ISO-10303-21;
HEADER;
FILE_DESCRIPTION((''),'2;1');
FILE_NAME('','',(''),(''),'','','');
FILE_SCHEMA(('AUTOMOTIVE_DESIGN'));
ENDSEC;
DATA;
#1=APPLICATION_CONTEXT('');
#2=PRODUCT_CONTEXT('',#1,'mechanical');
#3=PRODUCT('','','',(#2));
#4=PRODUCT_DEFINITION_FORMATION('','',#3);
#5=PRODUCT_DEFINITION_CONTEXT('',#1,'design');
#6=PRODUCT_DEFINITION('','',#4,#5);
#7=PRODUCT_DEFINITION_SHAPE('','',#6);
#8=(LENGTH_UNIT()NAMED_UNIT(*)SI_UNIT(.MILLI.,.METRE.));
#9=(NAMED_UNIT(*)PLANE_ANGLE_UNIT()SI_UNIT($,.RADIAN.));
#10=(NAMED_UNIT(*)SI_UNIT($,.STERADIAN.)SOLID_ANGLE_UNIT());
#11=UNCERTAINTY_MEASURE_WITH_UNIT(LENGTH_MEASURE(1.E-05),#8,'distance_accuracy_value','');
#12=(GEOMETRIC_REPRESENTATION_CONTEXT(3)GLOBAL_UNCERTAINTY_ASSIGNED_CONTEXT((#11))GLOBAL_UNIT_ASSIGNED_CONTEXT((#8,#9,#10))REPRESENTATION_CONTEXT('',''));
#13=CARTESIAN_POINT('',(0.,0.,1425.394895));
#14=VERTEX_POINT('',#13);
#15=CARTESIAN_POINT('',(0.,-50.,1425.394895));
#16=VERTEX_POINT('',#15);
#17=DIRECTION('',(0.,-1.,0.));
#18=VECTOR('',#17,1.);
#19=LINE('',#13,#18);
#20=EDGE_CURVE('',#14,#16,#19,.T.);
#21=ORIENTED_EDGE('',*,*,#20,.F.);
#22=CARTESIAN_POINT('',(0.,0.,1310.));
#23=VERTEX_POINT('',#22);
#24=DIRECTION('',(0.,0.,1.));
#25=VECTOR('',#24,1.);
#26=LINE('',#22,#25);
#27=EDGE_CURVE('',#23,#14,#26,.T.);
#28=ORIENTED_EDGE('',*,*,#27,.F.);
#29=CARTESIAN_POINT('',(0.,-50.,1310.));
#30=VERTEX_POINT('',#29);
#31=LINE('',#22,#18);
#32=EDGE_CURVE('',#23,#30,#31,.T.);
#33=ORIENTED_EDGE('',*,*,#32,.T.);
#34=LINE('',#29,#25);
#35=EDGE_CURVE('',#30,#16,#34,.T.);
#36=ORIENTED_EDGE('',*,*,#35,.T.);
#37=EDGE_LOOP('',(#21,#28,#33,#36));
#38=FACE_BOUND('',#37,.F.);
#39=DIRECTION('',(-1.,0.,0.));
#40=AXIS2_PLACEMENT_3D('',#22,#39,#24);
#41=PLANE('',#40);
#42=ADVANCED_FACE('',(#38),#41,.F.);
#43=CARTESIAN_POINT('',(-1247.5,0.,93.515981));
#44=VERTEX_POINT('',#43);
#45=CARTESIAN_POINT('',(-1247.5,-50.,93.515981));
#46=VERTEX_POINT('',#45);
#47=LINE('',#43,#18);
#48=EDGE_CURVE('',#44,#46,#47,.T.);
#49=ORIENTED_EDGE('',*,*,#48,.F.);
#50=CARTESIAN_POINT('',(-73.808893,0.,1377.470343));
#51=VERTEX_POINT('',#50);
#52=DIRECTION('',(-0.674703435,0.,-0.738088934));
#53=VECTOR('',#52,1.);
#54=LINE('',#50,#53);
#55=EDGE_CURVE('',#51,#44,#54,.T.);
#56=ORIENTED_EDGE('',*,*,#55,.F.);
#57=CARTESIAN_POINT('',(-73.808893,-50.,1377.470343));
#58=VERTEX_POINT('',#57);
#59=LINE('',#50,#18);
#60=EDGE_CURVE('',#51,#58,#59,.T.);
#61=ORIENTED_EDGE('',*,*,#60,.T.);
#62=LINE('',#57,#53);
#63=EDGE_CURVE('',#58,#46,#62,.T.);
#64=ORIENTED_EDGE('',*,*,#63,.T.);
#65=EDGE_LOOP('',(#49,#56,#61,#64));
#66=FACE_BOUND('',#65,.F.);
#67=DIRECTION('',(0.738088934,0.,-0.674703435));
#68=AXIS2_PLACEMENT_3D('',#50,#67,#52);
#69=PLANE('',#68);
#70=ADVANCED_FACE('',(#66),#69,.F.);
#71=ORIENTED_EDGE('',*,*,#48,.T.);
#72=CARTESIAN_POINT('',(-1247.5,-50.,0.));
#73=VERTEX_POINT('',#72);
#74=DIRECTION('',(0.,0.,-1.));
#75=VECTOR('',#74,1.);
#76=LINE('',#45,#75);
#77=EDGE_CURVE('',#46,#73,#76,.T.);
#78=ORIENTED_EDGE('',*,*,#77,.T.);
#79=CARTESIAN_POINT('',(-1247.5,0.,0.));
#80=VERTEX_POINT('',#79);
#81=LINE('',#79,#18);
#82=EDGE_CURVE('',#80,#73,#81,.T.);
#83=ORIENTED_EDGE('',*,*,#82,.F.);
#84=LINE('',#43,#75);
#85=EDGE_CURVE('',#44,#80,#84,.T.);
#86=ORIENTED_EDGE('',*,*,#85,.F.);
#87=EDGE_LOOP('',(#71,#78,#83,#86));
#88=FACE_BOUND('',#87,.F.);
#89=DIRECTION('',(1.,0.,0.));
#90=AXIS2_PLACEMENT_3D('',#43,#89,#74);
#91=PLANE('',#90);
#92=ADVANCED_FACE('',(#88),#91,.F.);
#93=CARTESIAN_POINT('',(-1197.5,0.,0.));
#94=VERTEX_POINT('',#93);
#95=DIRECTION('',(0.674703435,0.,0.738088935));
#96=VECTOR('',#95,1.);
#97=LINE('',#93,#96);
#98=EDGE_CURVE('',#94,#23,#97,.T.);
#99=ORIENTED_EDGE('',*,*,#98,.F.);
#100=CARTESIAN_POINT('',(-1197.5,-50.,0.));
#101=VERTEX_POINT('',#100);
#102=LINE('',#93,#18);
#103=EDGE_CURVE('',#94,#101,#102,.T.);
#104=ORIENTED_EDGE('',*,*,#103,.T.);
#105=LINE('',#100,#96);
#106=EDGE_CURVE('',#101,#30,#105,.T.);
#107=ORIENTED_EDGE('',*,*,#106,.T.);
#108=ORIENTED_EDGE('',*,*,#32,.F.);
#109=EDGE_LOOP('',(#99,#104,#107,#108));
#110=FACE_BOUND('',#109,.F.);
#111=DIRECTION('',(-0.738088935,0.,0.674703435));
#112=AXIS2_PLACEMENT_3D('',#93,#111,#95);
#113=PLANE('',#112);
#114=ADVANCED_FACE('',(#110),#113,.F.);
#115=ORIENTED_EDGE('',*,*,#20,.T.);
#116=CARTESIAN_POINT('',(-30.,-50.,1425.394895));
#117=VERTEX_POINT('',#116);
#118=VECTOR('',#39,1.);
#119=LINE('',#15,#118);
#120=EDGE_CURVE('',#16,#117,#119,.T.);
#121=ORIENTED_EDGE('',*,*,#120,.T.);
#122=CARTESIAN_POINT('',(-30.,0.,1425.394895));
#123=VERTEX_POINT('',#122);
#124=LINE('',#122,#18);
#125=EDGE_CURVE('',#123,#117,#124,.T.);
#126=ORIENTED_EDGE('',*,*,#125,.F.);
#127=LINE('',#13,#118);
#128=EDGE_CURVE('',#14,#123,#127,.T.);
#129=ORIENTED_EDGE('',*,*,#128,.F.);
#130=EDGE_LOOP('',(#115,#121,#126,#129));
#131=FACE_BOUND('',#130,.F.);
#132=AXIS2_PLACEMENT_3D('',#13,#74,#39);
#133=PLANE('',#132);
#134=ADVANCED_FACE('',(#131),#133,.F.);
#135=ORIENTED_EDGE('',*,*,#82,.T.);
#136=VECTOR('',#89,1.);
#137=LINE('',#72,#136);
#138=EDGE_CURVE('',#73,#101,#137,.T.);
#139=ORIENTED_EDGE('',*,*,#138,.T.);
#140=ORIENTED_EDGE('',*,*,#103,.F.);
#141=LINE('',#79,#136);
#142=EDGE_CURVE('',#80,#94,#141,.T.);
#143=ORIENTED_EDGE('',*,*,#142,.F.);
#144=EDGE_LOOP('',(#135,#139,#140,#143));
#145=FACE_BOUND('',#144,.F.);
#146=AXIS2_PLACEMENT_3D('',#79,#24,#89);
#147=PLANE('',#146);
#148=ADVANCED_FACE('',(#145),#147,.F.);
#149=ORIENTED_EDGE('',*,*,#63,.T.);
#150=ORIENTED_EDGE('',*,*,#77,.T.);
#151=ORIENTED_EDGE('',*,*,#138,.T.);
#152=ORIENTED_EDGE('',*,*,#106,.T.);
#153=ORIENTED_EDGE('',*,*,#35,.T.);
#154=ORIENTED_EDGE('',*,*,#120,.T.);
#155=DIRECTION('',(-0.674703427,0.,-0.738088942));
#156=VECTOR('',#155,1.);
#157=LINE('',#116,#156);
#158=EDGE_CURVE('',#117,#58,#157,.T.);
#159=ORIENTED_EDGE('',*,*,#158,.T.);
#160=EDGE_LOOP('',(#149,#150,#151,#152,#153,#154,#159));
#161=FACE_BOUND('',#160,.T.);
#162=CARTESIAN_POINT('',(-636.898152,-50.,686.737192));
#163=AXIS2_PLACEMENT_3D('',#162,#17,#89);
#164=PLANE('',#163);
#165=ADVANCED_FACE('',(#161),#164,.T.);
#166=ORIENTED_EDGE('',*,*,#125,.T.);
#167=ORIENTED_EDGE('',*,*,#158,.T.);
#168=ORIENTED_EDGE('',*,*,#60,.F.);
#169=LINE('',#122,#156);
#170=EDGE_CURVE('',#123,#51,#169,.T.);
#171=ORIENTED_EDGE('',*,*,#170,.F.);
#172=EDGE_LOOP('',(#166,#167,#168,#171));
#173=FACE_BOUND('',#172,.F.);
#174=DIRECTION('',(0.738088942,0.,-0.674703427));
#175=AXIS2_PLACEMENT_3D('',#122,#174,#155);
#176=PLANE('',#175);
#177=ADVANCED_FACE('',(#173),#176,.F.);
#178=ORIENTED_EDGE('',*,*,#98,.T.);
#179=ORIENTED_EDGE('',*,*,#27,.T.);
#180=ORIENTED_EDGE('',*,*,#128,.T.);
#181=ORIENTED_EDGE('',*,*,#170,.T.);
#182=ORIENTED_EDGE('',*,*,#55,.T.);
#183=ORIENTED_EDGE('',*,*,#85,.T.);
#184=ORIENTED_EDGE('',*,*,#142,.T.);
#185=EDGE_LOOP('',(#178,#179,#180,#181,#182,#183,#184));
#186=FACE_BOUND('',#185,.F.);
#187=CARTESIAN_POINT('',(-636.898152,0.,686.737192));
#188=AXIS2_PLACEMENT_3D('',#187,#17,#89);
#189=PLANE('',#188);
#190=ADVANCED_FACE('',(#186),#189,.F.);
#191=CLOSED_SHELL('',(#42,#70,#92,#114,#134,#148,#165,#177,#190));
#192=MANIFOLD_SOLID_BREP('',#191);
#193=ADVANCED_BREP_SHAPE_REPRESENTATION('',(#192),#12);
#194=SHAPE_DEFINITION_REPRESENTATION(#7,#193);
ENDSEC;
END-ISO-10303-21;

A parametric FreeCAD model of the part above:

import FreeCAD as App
import Part
import Sketcher

V = App.Vector
Q = App.Units.Quantity

doc = App.newDocument("Part")
body = doc.addObject("PartDesign::Body", "Body")

sketch1 = body.newObject("Sketcher::SketchObject", "Sketch")
sketch1.AttachmentSupport = (doc.getObject("XZ_Plane"), [""])
sketch1.MapMode = "FlatFace"
sketch1.addGeometry([
    Part.LineSegment(V(-1198, 0, 0), V(0, 1310, 0)),
    Part.LineSegment(V(0, 1310, 0), V(0, 1425, 0)),
    Part.LineSegment(V(0, 1425, 0), V(-30, 1425, 0)),
    Part.LineSegment(V(-30, 1425, 0), V(-74, 1377, 0)),
    Part.LineSegment(V(-74, 1377, 0), V(-1248, 94, 0)),
    Part.LineSegment(V(-1248, 94, 0), V(-1248, 0, 0)),
    Part.LineSegment(V(-1248, 0, 0), V(-1198, 0, 0)),
], False)
sketch1.addConstraint([
    Sketcher.Constraint("Coincident", 0, 2, 1, 1),
    Sketcher.Constraint("Coincident", 1, 2, 2, 1),
    Sketcher.Constraint("Coincident", 2, 2, 3, 1),
    Sketcher.Constraint("Coincident", 3, 2, 4, 1),
    Sketcher.Constraint("Coincident", 4, 2, 5, 1),
    Sketcher.Constraint("Coincident", 5, 2, 6, 1),
    Sketcher.Constraint("Coincident", 6, 2, 0, 1),
    Sketcher.Constraint("Vertical", 1),
    Sketcher.Constraint("Horizontal", 2),
    Sketcher.Constraint("Vertical", 5),
    Sketcher.Constraint("Horizontal", 6),
    Sketcher.Constraint("PointOnObject", 0, 2, -2),
    Sketcher.Constraint("PointOnObject", 5, 2, -1),
    Sketcher.Constraint("Parallel", 0, 3),
    Sketcher.Constraint("Parallel", 3, 4),
    Sketcher.Constraint("DistanceX", 2, 2, 2, 1, Q("30 mm")),
    Sketcher.Constraint("DistanceX", 6, 1, 6, 2, Q("50 mm")),
    Sketcher.Constraint("DistanceY", -1, 1, 0, 2, Q("1310 mm")),
    Sketcher.Constraint("DistanceX", 4, 2, -1, 1, Q("1247.5 mm")),
    Sketcher.Constraint("DistanceY", 5, 2, 5, 1, Q("93.515981 mm")),
    Sketcher.Constraint("Distance", 4, Q("1739.565928 mm")),
])
pad1 = body.newObject("PartDesign::Pad", "Pad")
pad1.Profile = sketch1
pad1.Length = 50

doc.recompute()
